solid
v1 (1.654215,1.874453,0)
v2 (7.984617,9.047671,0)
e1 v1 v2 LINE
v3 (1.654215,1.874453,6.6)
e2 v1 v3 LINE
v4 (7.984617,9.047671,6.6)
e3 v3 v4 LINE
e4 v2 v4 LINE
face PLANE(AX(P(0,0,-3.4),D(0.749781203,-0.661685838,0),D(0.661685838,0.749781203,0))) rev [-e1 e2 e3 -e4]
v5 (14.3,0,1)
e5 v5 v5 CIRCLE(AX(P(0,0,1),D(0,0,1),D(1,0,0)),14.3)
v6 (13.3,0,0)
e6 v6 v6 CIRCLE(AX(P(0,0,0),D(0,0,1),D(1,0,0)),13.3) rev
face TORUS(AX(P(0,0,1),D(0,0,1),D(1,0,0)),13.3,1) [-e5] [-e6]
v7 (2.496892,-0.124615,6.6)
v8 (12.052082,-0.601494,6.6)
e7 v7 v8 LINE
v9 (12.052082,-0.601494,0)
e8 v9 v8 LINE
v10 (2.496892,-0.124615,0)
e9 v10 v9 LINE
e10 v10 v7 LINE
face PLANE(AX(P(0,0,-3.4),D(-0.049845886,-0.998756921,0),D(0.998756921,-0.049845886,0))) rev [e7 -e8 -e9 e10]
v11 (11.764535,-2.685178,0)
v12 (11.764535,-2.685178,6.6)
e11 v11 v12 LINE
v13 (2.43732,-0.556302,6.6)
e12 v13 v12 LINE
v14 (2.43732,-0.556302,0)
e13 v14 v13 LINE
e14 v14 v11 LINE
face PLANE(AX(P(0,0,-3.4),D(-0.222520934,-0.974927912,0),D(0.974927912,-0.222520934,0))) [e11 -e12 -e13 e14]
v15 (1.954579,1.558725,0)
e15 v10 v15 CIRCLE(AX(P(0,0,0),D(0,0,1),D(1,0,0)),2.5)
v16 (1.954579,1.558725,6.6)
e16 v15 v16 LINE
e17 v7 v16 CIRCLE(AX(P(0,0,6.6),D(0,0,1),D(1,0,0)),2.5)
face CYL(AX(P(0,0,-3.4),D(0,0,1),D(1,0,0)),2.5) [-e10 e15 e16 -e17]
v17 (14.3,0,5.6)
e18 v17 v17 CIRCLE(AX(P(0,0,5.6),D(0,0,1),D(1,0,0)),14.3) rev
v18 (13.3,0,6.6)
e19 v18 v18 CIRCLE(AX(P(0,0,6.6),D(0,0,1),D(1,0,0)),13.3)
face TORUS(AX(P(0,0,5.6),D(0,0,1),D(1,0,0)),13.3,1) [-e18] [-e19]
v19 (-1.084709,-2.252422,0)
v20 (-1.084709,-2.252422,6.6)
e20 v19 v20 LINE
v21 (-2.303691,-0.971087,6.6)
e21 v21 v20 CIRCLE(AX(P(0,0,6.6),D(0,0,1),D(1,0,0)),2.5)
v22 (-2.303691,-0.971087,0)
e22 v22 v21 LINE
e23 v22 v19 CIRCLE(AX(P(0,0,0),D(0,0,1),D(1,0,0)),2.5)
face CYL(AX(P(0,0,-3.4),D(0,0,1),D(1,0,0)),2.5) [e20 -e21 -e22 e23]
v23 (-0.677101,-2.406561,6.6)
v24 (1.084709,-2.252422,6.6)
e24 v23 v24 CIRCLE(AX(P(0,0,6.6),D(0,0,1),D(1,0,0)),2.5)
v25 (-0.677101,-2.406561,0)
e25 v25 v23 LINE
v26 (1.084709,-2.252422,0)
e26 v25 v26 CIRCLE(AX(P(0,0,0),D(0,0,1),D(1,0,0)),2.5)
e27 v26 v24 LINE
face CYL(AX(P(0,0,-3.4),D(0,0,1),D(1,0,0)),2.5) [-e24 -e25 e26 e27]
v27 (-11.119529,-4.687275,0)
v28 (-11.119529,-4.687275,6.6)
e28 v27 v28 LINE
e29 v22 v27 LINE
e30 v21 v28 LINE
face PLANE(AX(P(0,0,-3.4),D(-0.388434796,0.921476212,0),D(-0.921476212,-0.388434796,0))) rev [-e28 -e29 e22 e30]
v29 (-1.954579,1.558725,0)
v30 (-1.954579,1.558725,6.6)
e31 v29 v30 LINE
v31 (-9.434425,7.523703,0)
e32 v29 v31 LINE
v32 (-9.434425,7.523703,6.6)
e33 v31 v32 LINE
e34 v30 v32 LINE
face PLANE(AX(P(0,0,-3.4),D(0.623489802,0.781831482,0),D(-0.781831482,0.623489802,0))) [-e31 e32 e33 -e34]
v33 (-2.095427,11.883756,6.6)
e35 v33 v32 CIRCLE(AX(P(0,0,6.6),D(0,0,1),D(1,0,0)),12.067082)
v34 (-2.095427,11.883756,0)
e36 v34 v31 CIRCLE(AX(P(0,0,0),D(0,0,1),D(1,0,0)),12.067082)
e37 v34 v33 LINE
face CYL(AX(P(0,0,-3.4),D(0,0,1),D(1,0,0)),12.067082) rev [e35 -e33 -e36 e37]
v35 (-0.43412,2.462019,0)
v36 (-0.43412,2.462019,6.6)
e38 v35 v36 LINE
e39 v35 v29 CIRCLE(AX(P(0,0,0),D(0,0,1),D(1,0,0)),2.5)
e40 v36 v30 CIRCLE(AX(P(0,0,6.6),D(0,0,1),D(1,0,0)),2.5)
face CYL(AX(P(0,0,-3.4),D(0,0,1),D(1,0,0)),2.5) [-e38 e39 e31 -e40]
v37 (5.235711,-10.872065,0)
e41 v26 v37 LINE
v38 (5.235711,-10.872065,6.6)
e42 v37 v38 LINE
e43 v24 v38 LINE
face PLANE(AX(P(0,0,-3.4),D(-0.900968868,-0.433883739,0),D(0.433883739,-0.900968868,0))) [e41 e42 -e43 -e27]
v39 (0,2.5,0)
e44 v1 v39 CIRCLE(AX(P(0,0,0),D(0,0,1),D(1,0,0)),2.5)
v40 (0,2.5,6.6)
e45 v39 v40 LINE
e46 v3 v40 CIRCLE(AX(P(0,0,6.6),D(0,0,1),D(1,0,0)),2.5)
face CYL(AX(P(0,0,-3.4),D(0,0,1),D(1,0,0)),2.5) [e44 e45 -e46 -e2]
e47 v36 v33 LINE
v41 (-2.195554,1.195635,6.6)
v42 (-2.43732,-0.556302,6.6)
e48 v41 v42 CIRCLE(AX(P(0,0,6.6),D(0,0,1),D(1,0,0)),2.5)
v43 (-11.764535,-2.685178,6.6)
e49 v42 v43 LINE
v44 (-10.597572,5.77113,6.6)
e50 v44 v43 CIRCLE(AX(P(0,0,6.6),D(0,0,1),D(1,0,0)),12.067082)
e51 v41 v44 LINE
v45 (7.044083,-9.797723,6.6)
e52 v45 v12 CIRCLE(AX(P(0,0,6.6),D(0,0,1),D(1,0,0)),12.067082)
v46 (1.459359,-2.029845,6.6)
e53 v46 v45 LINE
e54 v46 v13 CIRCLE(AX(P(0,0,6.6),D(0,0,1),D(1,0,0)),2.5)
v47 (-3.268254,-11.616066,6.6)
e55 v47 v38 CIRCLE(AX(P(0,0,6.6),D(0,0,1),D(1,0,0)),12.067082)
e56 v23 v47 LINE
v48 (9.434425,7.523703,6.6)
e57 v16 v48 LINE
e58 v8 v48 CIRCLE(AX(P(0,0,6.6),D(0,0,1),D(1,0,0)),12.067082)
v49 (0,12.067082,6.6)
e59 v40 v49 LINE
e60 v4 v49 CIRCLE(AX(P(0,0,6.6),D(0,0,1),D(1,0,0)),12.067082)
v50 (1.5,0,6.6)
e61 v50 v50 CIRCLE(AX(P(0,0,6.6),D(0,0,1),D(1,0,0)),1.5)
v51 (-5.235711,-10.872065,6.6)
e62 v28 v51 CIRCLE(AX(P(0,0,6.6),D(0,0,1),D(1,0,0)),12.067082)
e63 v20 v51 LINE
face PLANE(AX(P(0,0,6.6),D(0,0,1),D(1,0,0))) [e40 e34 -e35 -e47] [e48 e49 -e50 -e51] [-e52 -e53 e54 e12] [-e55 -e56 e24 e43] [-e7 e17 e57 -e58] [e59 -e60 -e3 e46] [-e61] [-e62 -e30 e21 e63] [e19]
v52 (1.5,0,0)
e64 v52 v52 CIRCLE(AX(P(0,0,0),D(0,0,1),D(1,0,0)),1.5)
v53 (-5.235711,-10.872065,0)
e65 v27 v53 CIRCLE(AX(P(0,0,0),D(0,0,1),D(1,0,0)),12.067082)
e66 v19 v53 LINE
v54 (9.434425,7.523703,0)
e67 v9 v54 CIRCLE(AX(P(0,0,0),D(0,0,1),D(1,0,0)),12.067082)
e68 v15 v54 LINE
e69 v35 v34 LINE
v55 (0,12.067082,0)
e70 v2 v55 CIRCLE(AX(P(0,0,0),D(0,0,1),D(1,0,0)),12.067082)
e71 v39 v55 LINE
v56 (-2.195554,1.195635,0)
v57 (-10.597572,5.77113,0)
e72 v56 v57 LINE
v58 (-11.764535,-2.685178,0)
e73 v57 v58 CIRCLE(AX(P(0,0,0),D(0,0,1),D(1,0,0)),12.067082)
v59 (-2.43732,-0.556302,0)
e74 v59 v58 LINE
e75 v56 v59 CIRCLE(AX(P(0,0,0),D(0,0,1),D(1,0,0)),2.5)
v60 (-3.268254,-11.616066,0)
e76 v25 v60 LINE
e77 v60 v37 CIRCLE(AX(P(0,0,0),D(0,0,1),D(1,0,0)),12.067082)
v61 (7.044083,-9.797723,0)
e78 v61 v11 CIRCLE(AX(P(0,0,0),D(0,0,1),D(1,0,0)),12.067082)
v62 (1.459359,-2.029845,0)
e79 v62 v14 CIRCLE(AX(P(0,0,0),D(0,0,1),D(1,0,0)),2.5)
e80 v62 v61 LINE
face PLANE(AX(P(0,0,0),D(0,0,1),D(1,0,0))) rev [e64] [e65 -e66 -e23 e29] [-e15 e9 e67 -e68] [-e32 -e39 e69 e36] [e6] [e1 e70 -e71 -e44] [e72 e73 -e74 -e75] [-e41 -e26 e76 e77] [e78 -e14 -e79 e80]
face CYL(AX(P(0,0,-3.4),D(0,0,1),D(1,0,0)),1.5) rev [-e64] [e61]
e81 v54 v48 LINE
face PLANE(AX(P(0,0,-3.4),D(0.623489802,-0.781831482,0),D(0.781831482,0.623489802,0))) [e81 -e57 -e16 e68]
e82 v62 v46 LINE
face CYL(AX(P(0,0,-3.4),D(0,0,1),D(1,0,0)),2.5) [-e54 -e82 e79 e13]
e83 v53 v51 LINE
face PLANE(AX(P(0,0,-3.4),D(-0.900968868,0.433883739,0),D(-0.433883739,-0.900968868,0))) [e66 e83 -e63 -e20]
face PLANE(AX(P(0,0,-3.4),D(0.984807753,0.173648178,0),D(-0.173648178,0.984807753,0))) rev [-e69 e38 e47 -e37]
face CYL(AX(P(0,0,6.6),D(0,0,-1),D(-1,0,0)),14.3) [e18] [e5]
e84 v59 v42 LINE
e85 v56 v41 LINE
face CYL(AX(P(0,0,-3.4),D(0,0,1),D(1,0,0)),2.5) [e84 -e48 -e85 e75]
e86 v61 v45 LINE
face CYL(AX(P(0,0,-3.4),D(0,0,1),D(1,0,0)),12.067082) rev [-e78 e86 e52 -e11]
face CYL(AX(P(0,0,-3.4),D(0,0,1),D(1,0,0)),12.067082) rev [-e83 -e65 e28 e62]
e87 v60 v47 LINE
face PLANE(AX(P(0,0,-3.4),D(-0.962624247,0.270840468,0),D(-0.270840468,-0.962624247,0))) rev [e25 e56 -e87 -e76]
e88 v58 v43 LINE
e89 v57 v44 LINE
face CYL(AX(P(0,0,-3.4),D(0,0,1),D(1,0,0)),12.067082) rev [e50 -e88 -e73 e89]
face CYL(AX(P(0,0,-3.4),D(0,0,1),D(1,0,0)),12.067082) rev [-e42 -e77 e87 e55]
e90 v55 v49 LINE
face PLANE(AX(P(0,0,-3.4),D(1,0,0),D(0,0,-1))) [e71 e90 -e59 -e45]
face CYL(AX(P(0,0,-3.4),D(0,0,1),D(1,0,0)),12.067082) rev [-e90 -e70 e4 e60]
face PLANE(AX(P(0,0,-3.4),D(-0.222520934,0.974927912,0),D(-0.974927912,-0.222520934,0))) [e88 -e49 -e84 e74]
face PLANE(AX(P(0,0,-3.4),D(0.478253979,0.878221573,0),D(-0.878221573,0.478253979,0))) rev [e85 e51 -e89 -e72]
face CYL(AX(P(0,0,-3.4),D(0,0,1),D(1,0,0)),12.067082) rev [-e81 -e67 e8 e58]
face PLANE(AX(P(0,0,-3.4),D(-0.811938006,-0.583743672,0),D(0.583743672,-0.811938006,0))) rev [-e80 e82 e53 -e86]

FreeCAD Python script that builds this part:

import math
import FreeCAD as App
import Part
import Sketcher

V = App.Vector
Q = App.Units.Quantity


def edges_at(feature, points):
    """Names of the edges that pass closest to the given points."""
    edges = feature.Shape.Edges
    near = lambda p: min(range(len(edges)), key=lambda i: edges[i].distToShape(Part.Vertex(*p))[0])
    return sorted({f"Edge{near(p) + 1}" for p in points})

doc = App.newDocument("Part")
params = doc.addObject("Spreadsheet::Sheet", "Params")
for row, (alias, value) in enumerate([
    ("sketch1_diameter", "28.6 mm"),
    ("pad1_length", "6.6 mm"),
    ("fillet_radius", "1 mm"),
    ("fillet2_radius", "1 mm"),
    ("sketch2_radius", "2.5 mm"),
    ("pocket1_length", "10 mm"),
    ("sketch3_diameter", "3 mm"),
    ("pocket2_length", "10 mm"),
], start=1):
    params.set(f"A{row}", alias)
    params.set(f"B{row}", "=" + value)
    params.setAlias(f"B{row}", alias)

body = doc.addObject("PartDesign::Body", "Body")

# Sketch on XY plane
sketch1 = body.newObject("Sketcher::SketchObject", "Sketch")
sketch1.AttachmentSupport = (doc.getObject("XY_Plane"), [""])
sketch1.MapMode = "FlatFace"
sketch1.addGeometry(Part.Circle(V(0, 0, 0), V(0, 0, 1), 14.3), False)
sketch1.addConstraint([
    Sketcher.Constraint("Coincident", 0, 3, -1, 1),
    Sketcher.Constraint("Diameter", 0, 28.6),
])
sketch1.setExpression("Constraints[1]", "Params.sketch1_diameter")
pad1 = body.newObject("PartDesign::Pad", "Pad")
pad1.Profile = sketch1
pad1.setExpression("Length", "Params.pad1_length")
doc.recompute()

fillet = body.newObject("PartDesign::Fillet", "Fillet")
fillet.Base = (pad1, edges_at(pad1, [(-14.3, 0, 6.6)]))
fillet.setExpression("Radius", "Params.fillet_radius")
doc.recompute()

fillet2 = body.newObject("PartDesign::Fillet", "Fillet001")
fillet2.Base = (fillet, edges_at(fillet, [(-14.3, 0, 0)]))
fillet2.setExpression("Radius", "Params.fillet2_radius")

# Sketch on XY plane
sketch2 = body.newObject("Sketcher::SketchObject", "Sketch001")
sketch2.AttachmentSupport = (doc.getObject("XY_Plane"), [""])
sketch2.MapMode = "FlatFace"
sketch2.AttachmentOffset = App.Placement(V(0, 0, 6.6), App.Rotation())
sketch2.addGeometry([
    Part.ArcOfCircle(Part.Circle(V(0, 0, 0), V(0, 0, 1), 2.5), math.radians(100), math.radians(141.428571)),  # 0
    Part.LineSegment(V(-0.43412, 2.462019, 0), V(-2.095427, 11.883756, 0)),  # 1
    Part.ArcOfCircle(Part.Circle(V(0, 0, 0), V(0, 0, 1), 12.067082), math.radians(100), math.radians(141.428571)),  # 2
    Part.LineSegment(V(-9.434425, 7.523703, 0), V(-1.954579, 1.558725, 0)),  # 3
    Part.ArcOfCircle(Part.Circle(V(0, 0, 0), V(0, 0, 1), 2.5), math.radians(151.428571), math.radians(192.857143)),  # 4
    Part.LineSegment(V(-2.195554, 1.195635, 0), V(-10.597572, 5.77113, 0)),  # 5
    Part.ArcOfCircle(Part.Circle(V(0, 0, 0), V(0, 0, 1), 12.067082), math.radians(151.428571), math.radians(192.857143)),  # 6
    Part.LineSegment(V(-11.764535, -2.685178, 0), V(-2.43732, -0.556302, 0)),  # 7
    Part.ArcOfCircle(Part.Circle(V(0, 0, 0), V(0, 0, 1), 2.5), math.radians(-157.142857), math.radians(-115.714286)),  # 8
    Part.LineSegment(V(-2.303691, -0.971087, 0), V(-11.119529, -4.687275, 0)),  # 9
    Part.ArcOfCircle(Part.Circle(V(0, 0, 0), V(0, 0, 1), 12.067082), math.radians(-157.142857), math.radians(-115.714286)),  # 10
    Part.LineSegment(V(-5.235711, -10.872065, 0), V(-1.084709, -2.252422, 0)),  # 11
    Part.LineSegment(V(5.235711, -10.872065, 0), V(1.084709, -2.252422, 0)),  # 12
    Part.ArcOfCircle(Part.Circle(V(0, 0, 0), V(0, 0, 1), 2.5), math.radians(-105.714286), math.radians(-64.285714)),  # 13
    Part.LineSegment(V(-0.677101, -2.406561, 0), V(-3.268254, -11.616066, 0)),  # 14
    Part.ArcOfCircle(Part.Circle(V(0, 0, 0), V(0, 0, 1), 12.067082), math.radians(-105.714286), math.radians(-64.285714)),  # 15
    Part.LineSegment(V(11.764535, -2.685178, 0), V(2.43732, -0.556302, 0)),  # 16
    Part.ArcOfCircle(Part.Circle(V(0, 0, 0), V(0, 0, 1), 2.5), math.radians(-54.285714), math.radians(-12.857143)),  # 17
    Part.LineSegment(V(1.459359, -2.029845, 0), V(7.044083, -9.797723, 0)),  # 18
    Part.ArcOfCircle(Part.Circle(V(0, 0, 0), V(0, 0, 1), 12.067082), math.radians(-54.285714), math.radians(-12.857143)),  # 19
    Part.LineSegment(V(9.434425, 7.523703, 0), V(1.954579, 1.558725, 0)),  # 20
    Part.ArcOfCircle(Part.Circle(V(0, 0, 0), V(0, 0, 1), 2.5), math.radians(0), math.radians(38.571429)),  # 21
    Part.ArcOfCircle(Part.Circle(V(0, 0, 0), V(0, 0, 1), 2.5), math.radians(-2.857143), math.radians(0)),  # 22
    Part.LineSegment(V(2.496892, -0.124615, 0), V(12.052082, -0.601494, 0)),  # 23
    Part.ArcOfCircle(Part.Circle(V(-0.000002, 0, 0), V(0, 0, 1), 12.067084), math.radians(-2.857143), math.radians(0)),  # 24
    Part.ArcOfCircle(Part.Circle(V(0, 0, 0), V(0, 0, 1), 12.067082), math.radians(0), math.radians(38.571429)),  # 25
    Part.LineSegment(V(0, 12.067082, 0), V(0, 2.5, 0)),  # 26
    Part.ArcOfCircle(Part.Circle(V(0, 0, 0), V(0, 0, 1), 2.5), math.radians(48.571429), math.radians(90)),  # 27
    Part.LineSegment(V(1.654215, 1.874453, 0), V(7.984617, 9.047671, 0)),  # 28
    Part.ArcOfCircle(Part.Circle(V(0, 0, 0), V(0, 0, 1), 12.067082), math.radians(48.571429), math.radians(90)),  # 29
], False)
sketch2.addConstraint([
    Sketcher.Constraint("Coincident", 0, 1, 1, 1),
    Sketcher.Constraint("Coincident", 1, 2, 2, 1),
    Sketcher.Constraint("Coincident", 2, 2, 3, 1),
    Sketcher.Constraint("Coincident", 3, 2, 0, 2),
    Sketcher.Constraint("Coincident", 4, 1, 5, 1),
    Sketcher.Constraint("Coincident", 5, 2, 6, 1),
    Sketcher.Constraint("Coincident", 6, 2, 7, 1),
    Sketcher.Constraint("Coincident", 7, 2, 4, 2),
    Sketcher.Constraint("Coincident", 8, 1, 9, 1),
    Sketcher.Constraint("Coincident", 9, 2, 10, 1),
    Sketcher.Constraint("Coincident", 10, 2, 11, 1),
    Sketcher.Constraint("Coincident", 11, 2, 8, 2),
    Sketcher.Constraint("Coincident", 12, 2, 13, 2),
    Sketcher.Constraint("Coincident", 13, 1, 14, 1),
    Sketcher.Constraint("Coincident", 14, 2, 15, 1),
    Sketcher.Constraint("Coincident", 15, 2, 12, 1),
    Sketcher.Constraint("Coincident", 16, 2, 17, 2),
    Sketcher.Constraint("Coincident", 17, 1, 18, 1),
    Sketcher.Constraint("Coincident", 18, 2, 19, 1),
    Sketcher.Constraint("Coincident", 19, 2, 16, 1),
    Sketcher.Constraint("Coincident", 20, 2, 21, 2),
    Sketcher.Constraint("Tangent", 21, 1, 22, 2),
    Sketcher.Constraint("Coincident", 22, 1, 23, 1),
    Sketcher.Constraint("Coincident", 23, 2, 24, 1),
    Sketcher.Constraint("Tangent", 24, 2, 25, 1),
    Sketcher.Constraint("Coincident", 25, 2, 20, 1),
    Sketcher.Constraint("Coincident", 26, 2, 27, 2),
    Sketcher.Constraint("Coincident", 27, 1, 28, 1),
    Sketcher.Constraint("Coincident", 28, 2, 29, 1),
    Sketcher.Constraint("Coincident", 29, 2, 26, 1),
    Sketcher.Constraint("Vertical", 26),
    Sketcher.Constraint("Coincident", 0, 3, -1, 1),
    Sketcher.Constraint("Coincident", 2, 3, -1, 1),
    Sketcher.Constraint("Coincident", 4, 3, -1, 1),
    Sketcher.Constraint("Coincident", 6, 3, -1, 1),
    Sketcher.Constraint("Coincident", 8, 3, -1, 1),
    Sketcher.Constraint("Coincident", 10, 3, -1, 1),
    Sketcher.Constraint("Coincident", 13, 3, -1, 1),
    Sketcher.Constraint("Coincident", 15, 3, -1, 1),
    Sketcher.Constraint("Coincident", 17, 3, -1, 1),
    Sketcher.Constraint("Coincident", 19, 3, -1, 1),
    Sketcher.Constraint("Coincident", 21, 3, -1, 1),
    Sketcher.Constraint("Coincident", 24, 3, -1, 1),
    Sketcher.Constraint("Coincident", 27, 3, -1, 1),
    Sketcher.Constraint("Coincident", 29, 3, -1, 1),
    Sketcher.Constraint("Equal", 0, 4),
    Sketcher.Constraint("Equal", 2, 6),
    Sketcher.Constraint("Equal", 4, 8),
    Sketcher.Constraint("Equal", 6, 10),
    Sketcher.Constraint("Equal", 8, 13),
    Sketcher.Constraint("Equal", 10, 15),
    Sketcher.Constraint("Equal", 13, 17),
    Sketcher.Constraint("Equal", 15, 19),
    Sketcher.Constraint("Equal", 17, 21),
    Sketcher.Constraint("Equal", 21, 22),
    Sketcher.Constraint("Equal", 19, 24),
    Sketcher.Constraint("Equal", 24, 25),
    Sketcher.Constraint("Equal", 22, 27),
    Sketcher.Constraint("Equal", 25, 29),
    Sketcher.Constraint("PointOnObject", 21, 1, -1),
    Sketcher.Constraint("PointOnObject", 24, 2, -1),
    Sketcher.Constraint("PointOnObject", 26, 2, -2),
    Sketcher.Constraint("Horizontal", 11, 2, 12, 2),
    Sketcher.Constraint("Horizontal", 10, 2, 15, 2),
    Sketcher.Constraint("Horizontal", 7, 2, 16, 2),
    Sketcher.Constraint("Horizontal", 6, 2, 19, 2),
    Sketcher.Constraint("Horizontal", 3, 2, 20, 2),
    Sketcher.Constraint("Horizontal", 2, 2, 25, 2),
    Sketcher.Constraint("Radius", 0, 2.5),
    Sketcher.Constraint("Angle", 1, Q("100 deg")),
    Sketcher.Constraint("Radius", 2, 12.067082),
    Sketcher.Constraint("DistanceX", 2, 2, 1, 2, 7.338998),
    Sketcher.Constraint("DistanceY", 14, 2, 10, 2, 0.744001),
    Sketcher.Constraint("DistanceX", 12, 2, 15, 2, 4.151001),
    Sketcher.Constraint("DistanceX", 23, 2, 24, 2, 0.015),
    Sketcher.Constraint("DistanceX", 13, 1, -1, 1, 0.677101),
    Sketcher.Constraint("DistanceY", 18, 2, 12, 2, 7.545301),
    Sketcher.Constraint("DistanceX", 0, 1, -1, 1, 0.43412),
    Sketcher.Constraint("DistanceX", 3, 2, -1, 1, 1.954579),
    Sketcher.Constraint("DistanceY", -1, 1, 5, 2, 5.77113),
    Sketcher.Constraint("DistanceY", 6, 2, -1, 1, 2.685178),
    Sketcher.Constraint("DistanceX", 7, 2, -1, 1, 2.43732),
    Sketcher.Constraint("DistanceX", 8, 1, -1, 1, 2.303691),
    Sketcher.Constraint("DistanceX", 9, 2, -1, 1, 11.119529),
    Sketcher.Constraint("DistanceX", 10, 2, -1, 1, 5.235711),
    Sketcher.Constraint("DistanceX", -1, 1, 17, 1, 1.459359),
    Sketcher.Constraint("DistanceY", -1, 1, 28, 2, 9.047671),
    Sketcher.Constraint("DistanceY", 4, 1, 3, 2, 0.36309),
    Sketcher.Constraint("DistanceY", 22, 1, 20, 2, 1.683339),
    Sketcher.Constraint("DistanceY", 20, 2, 27, 1, 0.315729),
])
sketch2.setExpression("Constraints[68]", "Params.sketch2_radius")
pocket1 = body.newObject("PartDesign::Pocket", "Pocket")
pocket1.Profile = sketch2
pocket1.setExpression("Length", "Params.pocket1_length")

# Sketch on XY plane
sketch3 = body.newObject("Sketcher::SketchObject", "Sketch002")
sketch3.AttachmentSupport = (doc.getObject("XY_Plane"), [""])
sketch3.MapMode = "FlatFace"
sketch3.AttachmentOffset = App.Placement(V(0, 0, 6.6), App.Rotation())
sketch3.addGeometry(Part.Circle(V(0, 0, 0), V(0, 0, 1), 1.5), False)
sketch3.addConstraint([
    Sketcher.Constraint("Coincident", 0, 3, -1, 1),
    Sketcher.Constraint("Diameter", 0, 3.0),
])
sketch3.setExpression("Constraints[1]", "Params.sketch3_diameter")
pocket2 = body.newObject("PartDesign::Pocket", "Pocket001")
pocket2.Profile = sketch3
pocket2.setExpression("Length", "Params.pocket2_length")

doc.recompute()
